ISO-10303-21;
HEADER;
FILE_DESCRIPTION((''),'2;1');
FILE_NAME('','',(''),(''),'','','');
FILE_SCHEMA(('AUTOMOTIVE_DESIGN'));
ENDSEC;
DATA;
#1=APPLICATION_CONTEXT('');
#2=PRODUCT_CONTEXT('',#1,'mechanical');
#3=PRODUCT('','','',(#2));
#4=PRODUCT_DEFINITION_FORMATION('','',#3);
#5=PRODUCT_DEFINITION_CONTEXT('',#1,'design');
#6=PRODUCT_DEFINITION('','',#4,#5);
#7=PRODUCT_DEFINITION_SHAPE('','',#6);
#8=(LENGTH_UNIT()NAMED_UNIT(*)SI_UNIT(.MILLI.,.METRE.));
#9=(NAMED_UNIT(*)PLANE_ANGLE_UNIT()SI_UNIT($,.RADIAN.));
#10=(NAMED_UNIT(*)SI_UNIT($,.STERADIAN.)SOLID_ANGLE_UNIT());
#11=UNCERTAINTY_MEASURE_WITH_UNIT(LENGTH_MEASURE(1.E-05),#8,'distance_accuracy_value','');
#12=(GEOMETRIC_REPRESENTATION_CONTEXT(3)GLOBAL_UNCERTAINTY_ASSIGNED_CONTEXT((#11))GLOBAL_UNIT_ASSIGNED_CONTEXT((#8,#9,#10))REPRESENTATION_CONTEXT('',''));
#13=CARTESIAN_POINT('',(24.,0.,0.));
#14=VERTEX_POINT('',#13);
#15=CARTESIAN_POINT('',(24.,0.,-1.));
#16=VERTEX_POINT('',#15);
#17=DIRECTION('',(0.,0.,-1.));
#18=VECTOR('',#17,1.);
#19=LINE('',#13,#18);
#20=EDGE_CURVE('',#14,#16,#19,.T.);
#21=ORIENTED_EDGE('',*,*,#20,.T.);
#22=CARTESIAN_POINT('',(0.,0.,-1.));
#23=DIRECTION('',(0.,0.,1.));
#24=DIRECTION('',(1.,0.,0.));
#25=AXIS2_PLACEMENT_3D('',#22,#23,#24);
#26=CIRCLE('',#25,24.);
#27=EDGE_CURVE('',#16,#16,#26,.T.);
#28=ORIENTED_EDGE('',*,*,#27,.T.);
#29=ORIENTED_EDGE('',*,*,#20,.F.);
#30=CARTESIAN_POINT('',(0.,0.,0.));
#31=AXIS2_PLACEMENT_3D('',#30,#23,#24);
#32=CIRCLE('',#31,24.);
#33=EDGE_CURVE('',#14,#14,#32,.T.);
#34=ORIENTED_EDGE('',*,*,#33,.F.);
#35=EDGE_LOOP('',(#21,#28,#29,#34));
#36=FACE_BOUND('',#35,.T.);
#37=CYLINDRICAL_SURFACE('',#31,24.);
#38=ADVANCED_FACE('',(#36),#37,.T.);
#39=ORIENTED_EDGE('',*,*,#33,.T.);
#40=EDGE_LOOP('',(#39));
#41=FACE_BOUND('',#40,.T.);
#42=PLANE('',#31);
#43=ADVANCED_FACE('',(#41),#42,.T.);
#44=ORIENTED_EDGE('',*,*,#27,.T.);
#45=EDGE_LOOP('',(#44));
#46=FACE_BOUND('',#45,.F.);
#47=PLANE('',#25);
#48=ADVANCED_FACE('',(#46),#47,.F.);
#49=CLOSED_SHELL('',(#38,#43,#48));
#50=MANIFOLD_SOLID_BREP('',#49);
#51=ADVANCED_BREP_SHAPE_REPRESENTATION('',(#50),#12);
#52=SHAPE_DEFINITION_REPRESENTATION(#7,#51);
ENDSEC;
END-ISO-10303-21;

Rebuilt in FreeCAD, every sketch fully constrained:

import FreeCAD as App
import Part
import Sketcher
from FreeCAD import Vector

doc = App.newDocument("Part")
params = doc.addObject("Spreadsheet::Sheet", "Params")
for row, (alias, value) in enumerate([
    ("sketch1_diameter", "48 mm"),
    ("pad1_length", "1 mm"),
], start=1):
    params.set(f"A{row}", alias)
    params.set(f"B{row}", "=" + value)
    params.setAlias(f"B{row}", alias)

body = doc.addObject("PartDesign::Body", "Body")

sketch1 = doc.addObject("Sketcher::SketchObject", "Sketch")
body.addObject(sketch1)
sketch1.AttachmentSupport = (doc.XY_Plane, [""])
sketch1.MapMode = "FlatFace"
sketch1.addGeometry(Part.Circle(Vector(0, 0, 0), Vector(0, 0, 1), 24), False)
sketch1.addConstraint([
    Sketcher.Constraint("Coincident", 0, 3, -1, 1),
    Sketcher.Constraint("Diameter", 0, 48.0),
])
sketch1.setExpression("Constraints[1]", "Params.sketch1_diameter")
pad1 = doc.addObject("PartDesign::Pad", "Pad")
body.addObject(pad1)
pad1.Profile = sketch1
pad1.setExpression("Length", "Params.pad1_length")
pad1.Reversed = True

doc.recompute()
